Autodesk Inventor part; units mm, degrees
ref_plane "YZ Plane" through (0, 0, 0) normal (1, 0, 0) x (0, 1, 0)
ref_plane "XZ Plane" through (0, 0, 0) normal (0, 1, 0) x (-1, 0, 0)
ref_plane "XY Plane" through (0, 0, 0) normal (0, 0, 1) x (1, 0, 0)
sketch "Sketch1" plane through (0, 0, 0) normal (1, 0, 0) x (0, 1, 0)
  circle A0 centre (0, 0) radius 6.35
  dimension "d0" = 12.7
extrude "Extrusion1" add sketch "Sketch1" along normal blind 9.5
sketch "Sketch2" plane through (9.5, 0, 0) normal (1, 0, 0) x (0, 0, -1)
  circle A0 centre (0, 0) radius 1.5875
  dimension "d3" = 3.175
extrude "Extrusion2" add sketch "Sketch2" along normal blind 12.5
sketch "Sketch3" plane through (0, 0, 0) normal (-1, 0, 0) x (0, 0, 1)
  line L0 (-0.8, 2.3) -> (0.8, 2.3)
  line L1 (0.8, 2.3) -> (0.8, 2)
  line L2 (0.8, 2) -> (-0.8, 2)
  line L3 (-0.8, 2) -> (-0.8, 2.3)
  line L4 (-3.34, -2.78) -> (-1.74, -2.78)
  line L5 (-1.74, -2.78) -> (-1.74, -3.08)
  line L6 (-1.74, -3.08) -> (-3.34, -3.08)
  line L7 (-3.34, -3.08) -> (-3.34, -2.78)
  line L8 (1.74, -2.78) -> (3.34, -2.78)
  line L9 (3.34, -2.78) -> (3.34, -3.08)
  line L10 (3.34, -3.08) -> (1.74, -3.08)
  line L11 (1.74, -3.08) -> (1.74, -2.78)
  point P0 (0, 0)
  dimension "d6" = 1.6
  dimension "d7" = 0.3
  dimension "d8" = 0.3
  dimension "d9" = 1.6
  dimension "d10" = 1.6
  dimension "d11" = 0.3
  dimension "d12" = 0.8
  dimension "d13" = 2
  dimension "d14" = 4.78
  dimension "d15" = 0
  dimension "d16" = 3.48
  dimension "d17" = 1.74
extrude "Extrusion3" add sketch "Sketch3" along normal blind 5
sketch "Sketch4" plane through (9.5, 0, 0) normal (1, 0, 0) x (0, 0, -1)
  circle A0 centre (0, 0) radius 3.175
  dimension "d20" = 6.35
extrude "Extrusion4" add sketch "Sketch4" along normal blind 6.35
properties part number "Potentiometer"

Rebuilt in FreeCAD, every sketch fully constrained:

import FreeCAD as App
import Part
import Sketcher
from FreeCAD import Vector
Q = App.Units.Quantity

doc = App.newDocument("Part")
body = doc.addObject("PartDesign::Body", "Body")

sketch1 = doc.addObject("Sketcher::SketchObject", "Sketch")
body.addObject(sketch1)
sketch1.AttachmentSupport = (doc.YZ_Plane, [""])
sketch1.MapMode = "FlatFace"
sketch1.addGeometry(Part.Circle(Vector(0, 0, 0), Vector(0, 0, 1), 6), False)
sketch1.addConstraint(Sketcher.Constraint("Coincident", 0, 3, -1, 1))
sketch1.addConstraint(Sketcher.Constraint("Diameter", 0, Q("0.5 in")))
pad1 = doc.addObject("PartDesign::Pad", "Pad")
body.addObject(pad1)
pad1.Profile = sketch1
pad1.Length = 9.5

sketch2 = doc.addObject("Sketcher::SketchObject", "Sketch001")
body.addObject(sketch2)
sketch2.AttachmentSupport = (doc.YZ_Plane, [""])
sketch2.MapMode = "FlatFace"
sketch2.AttachmentOffset = App.Placement(Vector(0, 0, 9.5), App.Rotation())
sketch2.addGeometry(Part.Circle(Vector(0, 0, 0), Vector(0, 0, 1), 1.6), False)
sketch2.addConstraint(Sketcher.Constraint("Coincident", 0, 3, -1, 1))
sketch2.addConstraint(Sketcher.Constraint("Diameter", 0, Q("0.125 in")))
pad2 = doc.addObject("PartDesign::Pad", "Pad001")
body.addObject(pad2)
pad2.Profile = sketch2
pad2.Length = 12.5

sketch3 = doc.addObject("Sketcher::SketchObject", "Sketch002")
body.addObject(sketch3)
sketch3.AttachmentSupport = (doc.YZ_Plane, [""])
sketch3.MapMode = "FlatFace"
sketch3.addGeometry(Part.LineSegment(Vector(2.3, 0.8, 0), Vector(2.3, -0.8, 0)), False)
sketch3.addGeometry(Part.LineSegment(Vector(2.3, -0.8, 0), Vector(2, -0.8, 0)), False)
sketch3.addGeometry(Part.LineSegment(Vector(2, -0.8, 0), Vector(2, 0.8, 0)), False)
sketch3.addGeometry(Part.LineSegment(Vector(2, 0.8, 0), Vector(2.3, 0.8, 0)), False)
sketch3.addGeometry(Part.LineSegment(Vector(-2.78, -1.74, 0), Vector(-2.78, -3.34, 0)), False)
sketch3.addGeometry(Part.LineSegment(Vector(-2.78, -3.34, 0), Vector(-3.08, -3.34, 0)), False)
sketch3.addGeometry(Part.LineSegment(Vector(-3.08, -3.34, 0), Vector(-3.08, -1.74, 0)), False)
sketch3.addGeometry(Part.LineSegment(Vector(-3.08, -1.74, 0), Vector(-2.78, -1.74, 0)), False)
sketch3.addGeometry(Part.LineSegment(Vector(-2.78, 3.34, 0), Vector(-2.78, 1.74, 0)), False)
sketch3.addGeometry(Part.LineSegment(Vector(-2.78, 1.74, 0), Vector(-3.08, 1.74, 0)), False)
sketch3.addGeometry(Part.LineSegment(Vector(-3.08, 1.74, 0), Vector(-3.08, 3.34, 0)), False)
sketch3.addGeometry(Part.LineSegment(Vector(-3.08, 3.34, 0), Vector(-2.78, 3.34, 0)), False)
sketch3.addConstraint(Sketcher.Constraint("Coincident", 0, 2, 1, 1))
sketch3.addConstraint(Sketcher.Constraint("Coincident", 1, 2, 2, 1))
sketch3.addConstraint(Sketcher.Constraint("Coincident", 2, 2, 3, 1))
sketch3.addConstraint(Sketcher.Constraint("Coincident", 3, 2, 0, 1))
sketch3.addConstraint(Sketcher.Constraint("Coincident", 4, 2, 5, 1))
sketch3.addConstraint(Sketcher.Constraint("Coincident", 5, 2, 6, 1))
sketch3.addConstraint(Sketcher.Constraint("Coincident", 6, 2, 7, 1))
sketch3.addConstraint(Sketcher.Constraint("Coincident", 7, 2, 4, 1))
sketch3.addConstraint(Sketcher.Constraint("Coincident", 8, 2, 9, 1))
sketch3.addConstraint(Sketcher.Constraint("Coincident", 9, 2, 10, 1))
sketch3.addConstraint(Sketcher.Constraint("Coincident", 10, 2, 11, 1))
sketch3.addConstraint(Sketcher.Constraint("Coincident", 11, 2, 8, 1))
sketch3.addConstraint(Sketcher.Constraint("Vertical", 0))
sketch3.addConstraint(Sketcher.Constraint("Horizontal", 1))
sketch3.addConstraint(Sketcher.Constraint("Vertical", 2))
sketch3.addConstraint(Sketcher.Constraint("Horizontal", 3))
sketch3.addConstraint(Sketcher.Constraint("Vertical", 4))
sketch3.addConstraint(Sketcher.Constraint("Horizontal", 5))
sketch3.addConstraint(Sketcher.Constraint("Vertical", 6))
sketch3.addConstraint(Sketcher.Constraint("Horizontal", 7))
sketch3.addConstraint(Sketcher.Constraint("Vertical", 8))
sketch3.addConstraint(Sketcher.Constraint("Horizontal", 9))
sketch3.addConstraint(Sketcher.Constraint("Vertical", 10))
sketch3.addConstraint(Sketcher.Constraint("Horizontal", 11))
sketch3.addConstraint(Sketcher.Constraint("Symmetric", 7, 2, 8, 2, -1))
sketch3.addConstraint(Sketcher.Constraint("Symmetric", 5, 2, 10, 2, -1))
sketch3.addConstraint(Sketcher.Constraint("Equal", 3, 5))
sketch3.addConstraint(Sketcher.Constraint("Equal", 2, 4))
sketch3.addConstraint(Sketcher.Constraint("DistanceY", 0, 2, 0, 1, Q("0.063 in")))
sketch3.addConstraint(Sketcher.Constraint("DistanceX", 1, 2, 1, 1, Q("0.0118 in")))
sketch3.addConstraint(Sketcher.Constraint("DistanceY", 7, 2, 8, 2, Q("0.137 in")))
sketch3.addConstraint(Sketcher.Constraint("DistanceY", 0, 2, -1, 1, Q("0.0315 in")))
sketch3.addConstraint(Sketcher.Constraint("DistanceX", 4, 2, 1, 2, Q("0.1882 in")))
sketch3.addConstraint(Sketcher.Constraint("DistanceX", -1, 1, 1, 2, 2.0))
pad3 = doc.addObject("PartDesign::Pad", "Pad002")
body.addObject(pad3)
pad3.Profile = sketch3
pad3.Length = 5
pad3.Reversed = True

sketch4 = doc.addObject("Sketcher::SketchObject", "Sketch003")
body.addObject(sketch4)
sketch4.AttachmentSupport = (doc.YZ_Plane, [""])
sketch4.MapMode = "FlatFace"
sketch4.AttachmentOffset = App.Placement(Vector(0, 0, 9.5), App.Rotation())
sketch4.addGeometry(Part.Circle(Vector(0, 0, 0), Vector(0, 0, 1), 3.2), False)
sketch4.addConstraint(Sketcher.Constraint("Coincident", 0, 3, -1, 1))
sketch4.addConstraint(Sketcher.Constraint("Diameter", 0, Q("0.25 in")))
pad4 = doc.addObject("PartDesign::Pad", "Pad003")
body.addObject(pad4)
pad4.Profile = sketch4
pad4.Length = Q("0.25 in")

doc.recompute()
